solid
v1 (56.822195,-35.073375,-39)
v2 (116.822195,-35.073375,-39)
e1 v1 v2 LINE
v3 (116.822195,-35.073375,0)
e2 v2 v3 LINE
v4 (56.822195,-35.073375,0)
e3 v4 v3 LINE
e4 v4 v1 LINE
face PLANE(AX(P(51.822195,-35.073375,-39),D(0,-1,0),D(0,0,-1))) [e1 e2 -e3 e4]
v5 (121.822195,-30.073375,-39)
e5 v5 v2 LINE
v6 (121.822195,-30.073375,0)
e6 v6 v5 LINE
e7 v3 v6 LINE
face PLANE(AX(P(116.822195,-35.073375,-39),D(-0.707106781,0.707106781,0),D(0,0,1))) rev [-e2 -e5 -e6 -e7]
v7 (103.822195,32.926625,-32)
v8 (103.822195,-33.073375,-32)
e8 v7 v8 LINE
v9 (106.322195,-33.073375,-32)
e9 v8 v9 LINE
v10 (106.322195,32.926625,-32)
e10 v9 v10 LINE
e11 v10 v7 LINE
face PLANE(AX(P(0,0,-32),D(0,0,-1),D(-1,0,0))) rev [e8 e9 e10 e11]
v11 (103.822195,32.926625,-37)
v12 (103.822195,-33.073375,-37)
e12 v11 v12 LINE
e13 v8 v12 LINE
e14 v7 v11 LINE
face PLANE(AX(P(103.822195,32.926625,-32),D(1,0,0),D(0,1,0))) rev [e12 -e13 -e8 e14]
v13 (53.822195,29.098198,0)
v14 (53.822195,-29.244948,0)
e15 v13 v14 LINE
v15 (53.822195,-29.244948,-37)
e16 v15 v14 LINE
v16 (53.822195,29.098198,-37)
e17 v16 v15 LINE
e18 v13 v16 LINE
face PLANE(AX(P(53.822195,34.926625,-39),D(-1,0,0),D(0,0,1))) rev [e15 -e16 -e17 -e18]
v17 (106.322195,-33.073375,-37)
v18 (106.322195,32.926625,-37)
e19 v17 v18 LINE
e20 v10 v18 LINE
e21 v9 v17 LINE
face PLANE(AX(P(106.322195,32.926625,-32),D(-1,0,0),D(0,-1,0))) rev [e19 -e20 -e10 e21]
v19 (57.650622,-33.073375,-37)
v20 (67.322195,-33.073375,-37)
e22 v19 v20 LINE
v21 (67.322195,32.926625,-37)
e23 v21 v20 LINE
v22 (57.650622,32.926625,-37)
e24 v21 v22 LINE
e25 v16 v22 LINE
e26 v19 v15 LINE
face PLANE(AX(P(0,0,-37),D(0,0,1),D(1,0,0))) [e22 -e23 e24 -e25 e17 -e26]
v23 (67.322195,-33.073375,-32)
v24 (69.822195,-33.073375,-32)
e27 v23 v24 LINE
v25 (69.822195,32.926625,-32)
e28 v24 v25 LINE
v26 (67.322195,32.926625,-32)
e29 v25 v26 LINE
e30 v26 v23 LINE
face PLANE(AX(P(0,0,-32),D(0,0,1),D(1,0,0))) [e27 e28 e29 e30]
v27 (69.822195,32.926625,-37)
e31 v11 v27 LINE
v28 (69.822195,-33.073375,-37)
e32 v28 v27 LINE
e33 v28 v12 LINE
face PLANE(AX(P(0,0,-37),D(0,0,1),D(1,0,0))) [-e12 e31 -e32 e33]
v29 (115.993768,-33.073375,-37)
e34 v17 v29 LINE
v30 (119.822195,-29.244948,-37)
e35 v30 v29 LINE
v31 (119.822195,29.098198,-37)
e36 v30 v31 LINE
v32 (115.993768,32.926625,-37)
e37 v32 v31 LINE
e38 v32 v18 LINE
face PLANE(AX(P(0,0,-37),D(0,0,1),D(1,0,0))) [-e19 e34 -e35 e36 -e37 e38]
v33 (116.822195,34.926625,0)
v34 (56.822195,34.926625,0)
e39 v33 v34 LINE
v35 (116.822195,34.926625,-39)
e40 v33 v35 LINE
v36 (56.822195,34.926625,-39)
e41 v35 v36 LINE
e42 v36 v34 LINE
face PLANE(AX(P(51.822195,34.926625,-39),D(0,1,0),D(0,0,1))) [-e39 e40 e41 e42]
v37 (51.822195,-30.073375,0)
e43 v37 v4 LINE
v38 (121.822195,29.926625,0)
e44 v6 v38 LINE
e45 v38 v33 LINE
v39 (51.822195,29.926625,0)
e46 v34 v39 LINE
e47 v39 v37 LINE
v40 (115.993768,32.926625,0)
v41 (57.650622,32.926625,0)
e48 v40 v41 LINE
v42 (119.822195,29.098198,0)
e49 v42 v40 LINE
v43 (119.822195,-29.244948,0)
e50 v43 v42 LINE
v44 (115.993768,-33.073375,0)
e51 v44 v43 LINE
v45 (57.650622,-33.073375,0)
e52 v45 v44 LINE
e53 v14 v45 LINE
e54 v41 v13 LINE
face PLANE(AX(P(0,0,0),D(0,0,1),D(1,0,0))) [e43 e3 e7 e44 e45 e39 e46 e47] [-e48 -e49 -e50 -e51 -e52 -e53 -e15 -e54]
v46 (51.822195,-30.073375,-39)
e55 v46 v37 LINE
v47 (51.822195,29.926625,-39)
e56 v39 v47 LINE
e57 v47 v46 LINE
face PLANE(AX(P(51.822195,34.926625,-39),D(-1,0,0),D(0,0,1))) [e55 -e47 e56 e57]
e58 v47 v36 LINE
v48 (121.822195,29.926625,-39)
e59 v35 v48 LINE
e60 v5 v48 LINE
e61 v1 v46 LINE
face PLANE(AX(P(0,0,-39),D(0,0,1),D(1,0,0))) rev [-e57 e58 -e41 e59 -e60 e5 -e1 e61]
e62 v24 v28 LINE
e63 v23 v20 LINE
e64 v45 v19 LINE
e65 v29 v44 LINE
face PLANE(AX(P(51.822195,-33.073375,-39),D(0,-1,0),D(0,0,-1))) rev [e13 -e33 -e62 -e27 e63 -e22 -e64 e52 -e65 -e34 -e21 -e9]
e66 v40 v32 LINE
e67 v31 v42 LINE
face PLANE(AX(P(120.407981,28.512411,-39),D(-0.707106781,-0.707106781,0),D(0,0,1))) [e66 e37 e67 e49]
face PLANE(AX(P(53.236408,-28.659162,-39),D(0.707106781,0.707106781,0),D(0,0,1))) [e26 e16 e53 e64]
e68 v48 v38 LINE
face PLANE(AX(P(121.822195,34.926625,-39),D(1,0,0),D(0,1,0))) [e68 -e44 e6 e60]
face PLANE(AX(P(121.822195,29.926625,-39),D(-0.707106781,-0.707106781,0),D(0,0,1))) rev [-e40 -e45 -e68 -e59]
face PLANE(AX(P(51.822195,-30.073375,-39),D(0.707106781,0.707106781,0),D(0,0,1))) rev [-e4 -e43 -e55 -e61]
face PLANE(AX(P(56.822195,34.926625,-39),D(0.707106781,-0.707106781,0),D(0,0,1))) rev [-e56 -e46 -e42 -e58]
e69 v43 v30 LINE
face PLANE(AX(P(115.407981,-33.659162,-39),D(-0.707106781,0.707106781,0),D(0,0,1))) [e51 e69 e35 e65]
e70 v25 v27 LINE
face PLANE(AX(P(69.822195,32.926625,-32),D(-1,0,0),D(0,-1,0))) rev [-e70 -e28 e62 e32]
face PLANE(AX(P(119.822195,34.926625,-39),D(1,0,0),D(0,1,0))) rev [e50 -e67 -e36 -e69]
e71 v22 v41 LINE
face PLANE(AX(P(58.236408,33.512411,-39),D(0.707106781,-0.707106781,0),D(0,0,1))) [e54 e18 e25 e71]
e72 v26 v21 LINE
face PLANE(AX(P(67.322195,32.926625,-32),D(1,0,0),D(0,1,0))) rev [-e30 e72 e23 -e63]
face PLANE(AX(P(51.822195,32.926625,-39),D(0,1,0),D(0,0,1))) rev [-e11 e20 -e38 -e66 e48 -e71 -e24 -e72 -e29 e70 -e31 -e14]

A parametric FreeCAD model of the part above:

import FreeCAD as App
import Part
import Sketcher
from FreeCAD import Vector
Q = App.Units.Quantity


def edges_at(feature, points):
    """Names of the edges that pass closest to the given points."""
    edges = feature.Shape.Edges
    near = lambda p: min(range(len(edges)), key=lambda i: edges[i].distToShape(Part.Vertex(*p))[0])
    return sorted({f"Edge{near(p) + 1}" for p in points})


def faces_at(feature, points):
    """Names of the faces that lie closest to the given points."""
    faces = feature.Shape.Faces
    near = lambda p: min(range(len(faces)), key=lambda i: faces[i].distToShape(Part.Vertex(*p))[0])
    return sorted({f"Face{near(p) + 1}" for p in points})


def add_polygon(sketch, points):
    """Adds a closed chain of lines whose ends are joined by coincident constraints."""
    first, n = sketch.GeometryCount, len(points)
    for a, b in zip(points, points[1:] + points[:1]):
        sketch.addGeometry(Part.LineSegment(App.Vector(*a, 0), App.Vector(*b, 0)), False)
    for i in range(n):
        sketch.addConstraint(Sketcher.Constraint("Coincident", first + i, 2, first + (i + 1) % n, 1))

doc = App.newDocument("Part")
body = doc.addObject("PartDesign::Body", "Body")

sketch1 = doc.addObject("Sketcher::SketchObject", "Sketch")
body.addObject(sketch1)
sketch1.AttachmentSupport = (doc.XY_Plane, [""])
sketch1.MapMode = "FlatFace"
add_polygon(sketch1, [(51.822195, 34.926625), (51.822195, -35.073375), (121.822195, -35.073375), (121.822195, 34.926625)])
sketch1.addConstraint([
    Sketcher.Constraint("Vertical", 0),
    Sketcher.Constraint("Horizontal", 1),
    Sketcher.Constraint("Vertical", 2),
    Sketcher.Constraint("Horizontal", 3),
    Sketcher.Constraint("Equal", 3, 0),
    Sketcher.Constraint("DistanceX", 1, 1, 1, 2, Q("70 mm")),
    Sketcher.Constraint("DistanceX", -1, 1, 0, 2, Q("51.822195 mm")),
    Sketcher.Constraint("DistanceY", 0, 2, -1, 1, Q("35.073375 mm")),
])
pad1 = doc.addObject("PartDesign::Pad", "Pad")
body.addObject(pad1)
pad1.Profile = sketch1
pad1.Length = 39
pad1.Reversed = True
doc.recompute()

chamfer = doc.addObject("PartDesign::Chamfer", "Chamfer")
body.addObject(chamfer)
chamfer.Base = (pad1, edges_at(pad1, [
    (51.822, 34.927, -19.5),
    (121.822, 34.927, -19.5),
    (121.822, -35.073, -19.5),
    (51.822, -35.073, -19.5),
]))
chamfer.Size = 5
doc.recompute()

thickness = doc.addObject("PartDesign::Thickness", "Thickness")
body.addObject(thickness)
thickness.Base = (chamfer, faces_at(chamfer, [(86.822, -0.073, 0)]))
thickness.Value = 2
thickness.Reversed = True
thickness.Join = "Intersection"

sketch2 = doc.addObject("Sketcher::SketchObject", "Sketch001")
body.addObject(sketch2)
sketch2.AttachmentSupport = (doc.XY_Plane, [""])
sketch2.MapMode = "FlatFace"
sketch2.AttachmentOffset = App.Placement(Vector(0, 0, -37), App.Rotation())
add_polygon(sketch2, [(67.322195, 32.926625), (67.322195, -33.073375), (69.822195, -33.073375), (69.822195, 32.926625)])
add_polygon(sketch2, [(103.822195, 32.926625), (103.822195, -33.073375), (106.322195, -33.073375), (106.322195, 32.926625)])
sketch2.addConstraint([
    Sketcher.Constraint("Vertical", 0),
    Sketcher.Constraint("Horizontal", 1),
    Sketcher.Constraint("Vertical", 2),
    Sketcher.Constraint("Horizontal", 3),
    Sketcher.Constraint("Vertical", 4),
    Sketcher.Constraint("Horizontal", 5),
    Sketcher.Constraint("Vertical", 6),
    Sketcher.Constraint("Horizontal", 7),
    Sketcher.Constraint("Horizontal", 1, 2, 4, 2),
    Sketcher.Constraint("Horizontal", 3, 2, 6, 2),
    Sketcher.Constraint("Equal", 3, 5),
    Sketcher.Constraint("DistanceY", 0, 2, 0, 1, Q("66 mm")),
    Sketcher.Constraint("DistanceX", 1, 1, 1, 2, Q("2.5 mm")),
    Sketcher.Constraint("DistanceX", 1, 2, 4, 2, Q("34 mm")),
    Sketcher.Constraint("DistanceX", -1, 1, 0, 2, Q("67.322195 mm")),
    Sketcher.Constraint("DistanceY", 0, 2, -1, 1, Q("33.073375 mm")),
])
pad2 = doc.addObject("PartDesign::Pad", "Pad001")
body.addObject(pad2)
pad2.Profile = sketch2
pad2.Length = 5

doc.recompute()
